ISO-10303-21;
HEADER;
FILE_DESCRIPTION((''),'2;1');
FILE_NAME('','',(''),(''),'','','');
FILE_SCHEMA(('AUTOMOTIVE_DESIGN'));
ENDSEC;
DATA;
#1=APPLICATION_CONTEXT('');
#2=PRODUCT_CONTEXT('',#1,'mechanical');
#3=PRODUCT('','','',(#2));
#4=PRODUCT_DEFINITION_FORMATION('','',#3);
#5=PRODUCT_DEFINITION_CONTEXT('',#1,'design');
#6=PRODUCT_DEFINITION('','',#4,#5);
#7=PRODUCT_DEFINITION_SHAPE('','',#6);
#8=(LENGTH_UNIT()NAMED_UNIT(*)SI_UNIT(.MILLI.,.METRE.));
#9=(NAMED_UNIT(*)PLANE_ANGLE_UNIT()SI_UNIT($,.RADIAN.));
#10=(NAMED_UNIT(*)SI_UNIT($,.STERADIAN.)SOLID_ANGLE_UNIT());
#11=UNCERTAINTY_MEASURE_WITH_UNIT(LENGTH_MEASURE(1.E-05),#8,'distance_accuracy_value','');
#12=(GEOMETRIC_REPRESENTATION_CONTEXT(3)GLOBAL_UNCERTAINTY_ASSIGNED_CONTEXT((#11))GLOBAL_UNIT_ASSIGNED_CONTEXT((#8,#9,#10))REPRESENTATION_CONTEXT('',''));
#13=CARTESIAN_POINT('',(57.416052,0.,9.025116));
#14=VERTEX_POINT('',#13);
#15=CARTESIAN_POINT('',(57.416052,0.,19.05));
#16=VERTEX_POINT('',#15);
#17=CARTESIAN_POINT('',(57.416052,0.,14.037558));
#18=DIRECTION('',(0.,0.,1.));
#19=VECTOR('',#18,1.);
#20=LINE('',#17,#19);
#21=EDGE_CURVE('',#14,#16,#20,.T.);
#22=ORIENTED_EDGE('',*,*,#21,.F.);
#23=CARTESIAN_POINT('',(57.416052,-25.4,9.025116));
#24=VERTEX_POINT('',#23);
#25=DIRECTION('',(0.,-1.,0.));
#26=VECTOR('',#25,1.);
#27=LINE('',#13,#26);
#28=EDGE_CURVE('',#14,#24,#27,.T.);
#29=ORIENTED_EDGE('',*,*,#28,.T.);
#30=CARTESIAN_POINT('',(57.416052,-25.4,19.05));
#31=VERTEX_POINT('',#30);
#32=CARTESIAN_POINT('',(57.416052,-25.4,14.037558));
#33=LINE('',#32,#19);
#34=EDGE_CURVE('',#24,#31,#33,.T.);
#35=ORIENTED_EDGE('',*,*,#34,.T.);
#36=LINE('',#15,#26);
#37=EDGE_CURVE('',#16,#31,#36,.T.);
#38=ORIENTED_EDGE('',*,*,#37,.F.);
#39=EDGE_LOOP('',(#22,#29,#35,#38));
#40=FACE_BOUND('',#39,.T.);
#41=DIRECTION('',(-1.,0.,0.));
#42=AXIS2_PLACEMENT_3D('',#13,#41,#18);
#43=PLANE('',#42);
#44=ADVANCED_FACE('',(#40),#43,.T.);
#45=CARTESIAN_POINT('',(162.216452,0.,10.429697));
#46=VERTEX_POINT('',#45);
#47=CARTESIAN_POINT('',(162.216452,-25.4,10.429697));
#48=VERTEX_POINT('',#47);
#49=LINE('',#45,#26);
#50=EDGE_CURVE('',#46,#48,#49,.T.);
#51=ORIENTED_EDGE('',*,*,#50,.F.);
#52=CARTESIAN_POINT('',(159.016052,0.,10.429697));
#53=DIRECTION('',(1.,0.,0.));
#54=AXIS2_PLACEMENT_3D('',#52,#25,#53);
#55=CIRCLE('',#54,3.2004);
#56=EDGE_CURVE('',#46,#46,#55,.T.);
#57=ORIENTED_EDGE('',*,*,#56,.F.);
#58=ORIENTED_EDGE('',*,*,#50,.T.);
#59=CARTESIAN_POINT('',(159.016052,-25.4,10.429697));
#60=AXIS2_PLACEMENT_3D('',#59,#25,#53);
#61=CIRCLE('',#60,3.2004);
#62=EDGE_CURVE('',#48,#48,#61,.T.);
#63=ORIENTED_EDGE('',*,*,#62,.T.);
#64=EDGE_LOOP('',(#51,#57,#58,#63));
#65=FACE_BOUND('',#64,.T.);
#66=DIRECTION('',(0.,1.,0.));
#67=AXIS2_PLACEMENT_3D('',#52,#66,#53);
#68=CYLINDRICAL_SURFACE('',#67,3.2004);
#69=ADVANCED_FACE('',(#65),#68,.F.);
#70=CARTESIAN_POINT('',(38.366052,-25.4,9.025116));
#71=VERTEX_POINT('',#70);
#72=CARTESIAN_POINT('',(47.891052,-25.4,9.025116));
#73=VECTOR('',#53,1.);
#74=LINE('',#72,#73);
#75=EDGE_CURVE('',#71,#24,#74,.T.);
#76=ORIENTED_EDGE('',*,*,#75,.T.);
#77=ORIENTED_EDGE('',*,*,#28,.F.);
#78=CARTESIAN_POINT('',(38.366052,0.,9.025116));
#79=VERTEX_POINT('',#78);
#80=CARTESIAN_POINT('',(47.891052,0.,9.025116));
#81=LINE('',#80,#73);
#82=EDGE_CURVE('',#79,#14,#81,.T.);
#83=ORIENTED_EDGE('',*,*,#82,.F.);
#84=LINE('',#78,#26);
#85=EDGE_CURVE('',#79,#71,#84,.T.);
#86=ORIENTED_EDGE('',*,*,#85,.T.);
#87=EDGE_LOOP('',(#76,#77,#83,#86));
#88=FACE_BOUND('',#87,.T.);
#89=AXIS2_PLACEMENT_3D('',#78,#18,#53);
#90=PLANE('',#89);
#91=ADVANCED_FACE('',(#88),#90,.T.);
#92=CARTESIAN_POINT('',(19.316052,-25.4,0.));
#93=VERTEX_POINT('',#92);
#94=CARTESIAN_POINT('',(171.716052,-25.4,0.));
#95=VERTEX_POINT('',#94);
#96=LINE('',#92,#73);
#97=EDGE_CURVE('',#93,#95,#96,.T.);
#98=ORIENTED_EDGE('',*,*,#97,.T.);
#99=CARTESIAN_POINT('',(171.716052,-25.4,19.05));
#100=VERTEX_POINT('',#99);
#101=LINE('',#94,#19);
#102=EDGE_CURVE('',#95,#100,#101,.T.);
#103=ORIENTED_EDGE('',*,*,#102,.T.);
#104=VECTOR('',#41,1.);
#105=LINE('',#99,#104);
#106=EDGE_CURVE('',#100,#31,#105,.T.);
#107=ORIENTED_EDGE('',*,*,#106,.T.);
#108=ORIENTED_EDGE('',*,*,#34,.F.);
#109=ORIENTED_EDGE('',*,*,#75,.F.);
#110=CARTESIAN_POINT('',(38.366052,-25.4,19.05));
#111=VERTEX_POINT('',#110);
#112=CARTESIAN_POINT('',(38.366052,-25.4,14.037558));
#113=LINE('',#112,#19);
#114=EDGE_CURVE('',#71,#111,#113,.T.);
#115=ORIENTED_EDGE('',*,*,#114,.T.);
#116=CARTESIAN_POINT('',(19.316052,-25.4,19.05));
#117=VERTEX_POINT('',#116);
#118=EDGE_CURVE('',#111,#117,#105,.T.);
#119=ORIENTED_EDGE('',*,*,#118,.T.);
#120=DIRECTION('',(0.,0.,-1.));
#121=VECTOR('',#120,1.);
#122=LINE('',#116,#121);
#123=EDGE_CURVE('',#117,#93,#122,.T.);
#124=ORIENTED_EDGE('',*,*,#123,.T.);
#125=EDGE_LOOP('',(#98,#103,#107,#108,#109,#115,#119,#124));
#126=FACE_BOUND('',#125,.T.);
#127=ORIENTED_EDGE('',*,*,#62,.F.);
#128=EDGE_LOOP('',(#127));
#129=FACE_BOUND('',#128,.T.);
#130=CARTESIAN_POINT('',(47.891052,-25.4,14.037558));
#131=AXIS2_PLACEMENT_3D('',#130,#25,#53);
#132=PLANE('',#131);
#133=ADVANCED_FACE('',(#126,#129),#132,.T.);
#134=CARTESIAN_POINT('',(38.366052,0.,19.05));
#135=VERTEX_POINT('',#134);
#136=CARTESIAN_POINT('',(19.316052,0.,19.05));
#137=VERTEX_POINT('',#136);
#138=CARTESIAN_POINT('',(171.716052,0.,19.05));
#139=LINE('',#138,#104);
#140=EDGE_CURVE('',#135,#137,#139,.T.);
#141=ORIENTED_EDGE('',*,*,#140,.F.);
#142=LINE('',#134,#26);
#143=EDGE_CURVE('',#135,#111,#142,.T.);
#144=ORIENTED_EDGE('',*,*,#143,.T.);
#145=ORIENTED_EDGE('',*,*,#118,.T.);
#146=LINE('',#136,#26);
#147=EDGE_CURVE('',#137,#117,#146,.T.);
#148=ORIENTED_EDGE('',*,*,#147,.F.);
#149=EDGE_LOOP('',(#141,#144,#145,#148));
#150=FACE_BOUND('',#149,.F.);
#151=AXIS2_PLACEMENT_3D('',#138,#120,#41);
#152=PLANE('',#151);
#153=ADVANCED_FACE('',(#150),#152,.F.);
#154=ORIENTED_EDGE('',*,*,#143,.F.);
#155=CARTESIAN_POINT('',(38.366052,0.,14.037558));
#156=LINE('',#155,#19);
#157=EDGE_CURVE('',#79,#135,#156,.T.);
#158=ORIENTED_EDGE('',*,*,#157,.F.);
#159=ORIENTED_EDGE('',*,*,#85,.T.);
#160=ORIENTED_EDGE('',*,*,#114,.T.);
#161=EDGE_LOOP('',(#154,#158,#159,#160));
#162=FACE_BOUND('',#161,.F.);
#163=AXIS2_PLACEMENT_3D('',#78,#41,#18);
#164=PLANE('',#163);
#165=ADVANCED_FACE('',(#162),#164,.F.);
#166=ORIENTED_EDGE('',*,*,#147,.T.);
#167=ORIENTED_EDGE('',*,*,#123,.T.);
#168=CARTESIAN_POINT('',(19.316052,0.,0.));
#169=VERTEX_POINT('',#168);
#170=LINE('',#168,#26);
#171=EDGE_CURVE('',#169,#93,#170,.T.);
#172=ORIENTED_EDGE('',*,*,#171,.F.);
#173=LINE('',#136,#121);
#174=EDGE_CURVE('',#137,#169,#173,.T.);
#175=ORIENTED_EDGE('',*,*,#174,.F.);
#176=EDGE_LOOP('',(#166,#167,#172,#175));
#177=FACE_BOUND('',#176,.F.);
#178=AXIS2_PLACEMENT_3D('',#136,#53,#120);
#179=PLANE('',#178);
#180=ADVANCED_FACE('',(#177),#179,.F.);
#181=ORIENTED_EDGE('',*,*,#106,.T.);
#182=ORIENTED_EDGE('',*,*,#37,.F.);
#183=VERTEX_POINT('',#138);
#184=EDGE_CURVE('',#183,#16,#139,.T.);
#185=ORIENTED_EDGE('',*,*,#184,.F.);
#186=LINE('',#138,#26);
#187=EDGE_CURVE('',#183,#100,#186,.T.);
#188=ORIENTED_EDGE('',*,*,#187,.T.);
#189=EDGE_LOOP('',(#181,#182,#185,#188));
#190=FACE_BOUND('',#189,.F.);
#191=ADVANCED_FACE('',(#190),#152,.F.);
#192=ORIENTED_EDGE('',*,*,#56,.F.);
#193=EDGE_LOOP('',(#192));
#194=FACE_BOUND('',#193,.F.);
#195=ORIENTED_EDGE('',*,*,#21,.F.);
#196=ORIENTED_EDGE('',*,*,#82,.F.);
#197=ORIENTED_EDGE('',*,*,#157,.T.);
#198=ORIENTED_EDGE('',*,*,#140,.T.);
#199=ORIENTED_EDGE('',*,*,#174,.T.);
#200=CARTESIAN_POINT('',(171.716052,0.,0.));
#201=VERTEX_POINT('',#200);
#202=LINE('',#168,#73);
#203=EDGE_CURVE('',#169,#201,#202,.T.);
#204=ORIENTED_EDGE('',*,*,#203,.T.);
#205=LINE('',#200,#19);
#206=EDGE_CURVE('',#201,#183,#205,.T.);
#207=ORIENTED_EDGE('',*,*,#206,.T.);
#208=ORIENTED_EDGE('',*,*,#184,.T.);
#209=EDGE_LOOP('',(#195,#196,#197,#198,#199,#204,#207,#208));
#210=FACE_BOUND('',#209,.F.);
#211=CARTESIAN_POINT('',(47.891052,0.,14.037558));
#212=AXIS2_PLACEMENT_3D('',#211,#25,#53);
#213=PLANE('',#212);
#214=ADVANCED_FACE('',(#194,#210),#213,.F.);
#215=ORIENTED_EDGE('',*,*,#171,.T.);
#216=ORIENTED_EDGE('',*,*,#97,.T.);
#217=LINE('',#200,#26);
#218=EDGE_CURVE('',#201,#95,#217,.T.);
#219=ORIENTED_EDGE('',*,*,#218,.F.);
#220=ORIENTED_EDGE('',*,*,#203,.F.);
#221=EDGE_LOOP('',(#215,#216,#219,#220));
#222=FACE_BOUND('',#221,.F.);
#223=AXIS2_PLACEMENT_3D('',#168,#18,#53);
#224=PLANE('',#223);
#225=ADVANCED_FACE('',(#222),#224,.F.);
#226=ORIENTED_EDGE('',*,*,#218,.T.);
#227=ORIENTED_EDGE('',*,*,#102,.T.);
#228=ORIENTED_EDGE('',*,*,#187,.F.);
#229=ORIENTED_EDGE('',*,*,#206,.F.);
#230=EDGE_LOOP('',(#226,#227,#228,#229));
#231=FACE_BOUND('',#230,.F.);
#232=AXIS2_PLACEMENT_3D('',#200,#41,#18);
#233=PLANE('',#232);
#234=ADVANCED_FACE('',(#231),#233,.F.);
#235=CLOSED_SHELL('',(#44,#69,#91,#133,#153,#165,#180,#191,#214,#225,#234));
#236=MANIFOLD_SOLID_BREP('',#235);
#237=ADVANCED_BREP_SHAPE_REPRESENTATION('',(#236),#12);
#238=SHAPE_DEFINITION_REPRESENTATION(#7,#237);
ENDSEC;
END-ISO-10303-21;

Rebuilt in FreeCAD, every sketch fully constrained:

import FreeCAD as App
import Part
import Sketcher
from FreeCAD import Vector
Q = App.Units.Quantity


def add_polygon(sketch, points):
    """Adds a closed chain of lines whose ends are joined by coincident constraints."""
    first, n = sketch.GeometryCount, len(points)
    for a, b in zip(points, points[1:] + points[:1]):
        sketch.addGeometry(Part.LineSegment(App.Vector(*a, 0), App.Vector(*b, 0)), False)
    for i in range(n):
        sketch.addConstraint(Sketcher.Constraint("Coincident", first + i, 2, first + (i + 1) % n, 1))

doc = App.newDocument("Part")
body = doc.addObject("PartDesign::Body", "Body")

sketch1 = body.newObject("Sketcher::SketchObject", "Sketch")
sketch1.AttachmentSupport = (doc.getObject("XZ_Plane"), [""])
sketch1.MapMode = "FlatFace"
add_polygon(sketch1, [(19.3, 19.1), (19.3, 0), (171.7, 0), (171.7, 19.1)])
sketch1.addGeometry(Part.Circle(Vector(159, 10.4, 0), Vector(0, 0, 1), 3.2), False)
sketch1.addConstraint([
    Sketcher.Constraint("Vertical", 0),
    Sketcher.Constraint("Horizontal", 1),
    Sketcher.Constraint("Vertical", 2),
    Sketcher.Constraint("Horizontal", 3),
    Sketcher.Constraint("PointOnObject", 0, 2, -1),
    Sketcher.Constraint("DistanceX", 1, 1, 1, 2, Q("6 in")),
    Sketcher.Constraint("Diameter", 4, Q("0.252 in")),
    Sketcher.Constraint("DistanceY", 0, 2, 0, 1, Q("0.75 in")),
    Sketcher.Constraint("DistanceX", 0, 2, 4, 3, Q("5.5 in")),
    Sketcher.Constraint("DistanceX", -1, 1, 4, 3, Q("159.016052 mm")),
    Sketcher.Constraint("DistanceY", -1, 1, 4, 3, Q("10.429697 mm")),
])
pad1 = body.newObject("PartDesign::Pad", "Pad")
pad1.Profile = sketch1
pad1.Length = Q("1 in")

sketch2 = body.newObject("Sketcher::SketchObject", "Sketch001")
sketch2.AttachmentSupport = (doc.getObject("XZ_Plane"), [""])
sketch2.MapMode = "FlatFace"
add_polygon(sketch2, [(38, 19), (38, 9), (57, 9), (57, 19)])
sketch2.addConstraint([
    Sketcher.Constraint("Vertical", 0),
    Sketcher.Constraint("Horizontal", 1),
    Sketcher.Constraint("Vertical", 2),
    Sketcher.Constraint("Horizontal", 3),
    Sketcher.Constraint("DistanceX", 1, 1, 1, 2, Q("0.75 in")),
    Sketcher.Constraint("DistanceY", -1, 1, 2, 2, Q("0.75 in")),
    Sketcher.Constraint("DistanceY", 0, 2, 0, 1, Q("10.024884 mm")),
    Sketcher.Constraint("DistanceX", -1, 1, 0, 2, Q("38.366052 mm")),
])
pad2 = body.newObject("PartDesign::Pad", "Pad001")
pad2.Profile = sketch2
pad2.Length = Q("0.75 in")

sketch3 = body.newObject("Sketcher::SketchObject", "Sketch002")
sketch3.AttachmentSupport = (doc.getObject("XZ_Plane"), [""])
sketch3.MapMode = "FlatFace"
add_polygon(sketch3, [(38, 19), (38, 9), (57, 9), (57, 19)])
sketch3.addConstraint([
    Sketcher.Constraint("Vertical", 0),
    Sketcher.Constraint("Horizontal", 1),
    Sketcher.Constraint("Vertical", 2),
    Sketcher.Constraint("Horizontal", 3),
    Sketcher.Constraint("DistanceX", 1, 1, 1, 2, Q("0.75 in")),
    Sketcher.Constraint("DistanceY", -1, 1, 2, 2, Q("0.75 in")),
    Sketcher.Constraint("DistanceY", 0, 2, 0, 1, Q("10.024884 mm")),
    Sketcher.Constraint("DistanceX", -1, 1, 0, 2, Q("38.366052 mm")),
])
pocket1 = body.newObject("PartDesign::Pocket", "Pocket")
pocket1.Profile = sketch3
pocket1.Length = Q("1 in")
pocket1.Reversed = True

doc.recompute()
